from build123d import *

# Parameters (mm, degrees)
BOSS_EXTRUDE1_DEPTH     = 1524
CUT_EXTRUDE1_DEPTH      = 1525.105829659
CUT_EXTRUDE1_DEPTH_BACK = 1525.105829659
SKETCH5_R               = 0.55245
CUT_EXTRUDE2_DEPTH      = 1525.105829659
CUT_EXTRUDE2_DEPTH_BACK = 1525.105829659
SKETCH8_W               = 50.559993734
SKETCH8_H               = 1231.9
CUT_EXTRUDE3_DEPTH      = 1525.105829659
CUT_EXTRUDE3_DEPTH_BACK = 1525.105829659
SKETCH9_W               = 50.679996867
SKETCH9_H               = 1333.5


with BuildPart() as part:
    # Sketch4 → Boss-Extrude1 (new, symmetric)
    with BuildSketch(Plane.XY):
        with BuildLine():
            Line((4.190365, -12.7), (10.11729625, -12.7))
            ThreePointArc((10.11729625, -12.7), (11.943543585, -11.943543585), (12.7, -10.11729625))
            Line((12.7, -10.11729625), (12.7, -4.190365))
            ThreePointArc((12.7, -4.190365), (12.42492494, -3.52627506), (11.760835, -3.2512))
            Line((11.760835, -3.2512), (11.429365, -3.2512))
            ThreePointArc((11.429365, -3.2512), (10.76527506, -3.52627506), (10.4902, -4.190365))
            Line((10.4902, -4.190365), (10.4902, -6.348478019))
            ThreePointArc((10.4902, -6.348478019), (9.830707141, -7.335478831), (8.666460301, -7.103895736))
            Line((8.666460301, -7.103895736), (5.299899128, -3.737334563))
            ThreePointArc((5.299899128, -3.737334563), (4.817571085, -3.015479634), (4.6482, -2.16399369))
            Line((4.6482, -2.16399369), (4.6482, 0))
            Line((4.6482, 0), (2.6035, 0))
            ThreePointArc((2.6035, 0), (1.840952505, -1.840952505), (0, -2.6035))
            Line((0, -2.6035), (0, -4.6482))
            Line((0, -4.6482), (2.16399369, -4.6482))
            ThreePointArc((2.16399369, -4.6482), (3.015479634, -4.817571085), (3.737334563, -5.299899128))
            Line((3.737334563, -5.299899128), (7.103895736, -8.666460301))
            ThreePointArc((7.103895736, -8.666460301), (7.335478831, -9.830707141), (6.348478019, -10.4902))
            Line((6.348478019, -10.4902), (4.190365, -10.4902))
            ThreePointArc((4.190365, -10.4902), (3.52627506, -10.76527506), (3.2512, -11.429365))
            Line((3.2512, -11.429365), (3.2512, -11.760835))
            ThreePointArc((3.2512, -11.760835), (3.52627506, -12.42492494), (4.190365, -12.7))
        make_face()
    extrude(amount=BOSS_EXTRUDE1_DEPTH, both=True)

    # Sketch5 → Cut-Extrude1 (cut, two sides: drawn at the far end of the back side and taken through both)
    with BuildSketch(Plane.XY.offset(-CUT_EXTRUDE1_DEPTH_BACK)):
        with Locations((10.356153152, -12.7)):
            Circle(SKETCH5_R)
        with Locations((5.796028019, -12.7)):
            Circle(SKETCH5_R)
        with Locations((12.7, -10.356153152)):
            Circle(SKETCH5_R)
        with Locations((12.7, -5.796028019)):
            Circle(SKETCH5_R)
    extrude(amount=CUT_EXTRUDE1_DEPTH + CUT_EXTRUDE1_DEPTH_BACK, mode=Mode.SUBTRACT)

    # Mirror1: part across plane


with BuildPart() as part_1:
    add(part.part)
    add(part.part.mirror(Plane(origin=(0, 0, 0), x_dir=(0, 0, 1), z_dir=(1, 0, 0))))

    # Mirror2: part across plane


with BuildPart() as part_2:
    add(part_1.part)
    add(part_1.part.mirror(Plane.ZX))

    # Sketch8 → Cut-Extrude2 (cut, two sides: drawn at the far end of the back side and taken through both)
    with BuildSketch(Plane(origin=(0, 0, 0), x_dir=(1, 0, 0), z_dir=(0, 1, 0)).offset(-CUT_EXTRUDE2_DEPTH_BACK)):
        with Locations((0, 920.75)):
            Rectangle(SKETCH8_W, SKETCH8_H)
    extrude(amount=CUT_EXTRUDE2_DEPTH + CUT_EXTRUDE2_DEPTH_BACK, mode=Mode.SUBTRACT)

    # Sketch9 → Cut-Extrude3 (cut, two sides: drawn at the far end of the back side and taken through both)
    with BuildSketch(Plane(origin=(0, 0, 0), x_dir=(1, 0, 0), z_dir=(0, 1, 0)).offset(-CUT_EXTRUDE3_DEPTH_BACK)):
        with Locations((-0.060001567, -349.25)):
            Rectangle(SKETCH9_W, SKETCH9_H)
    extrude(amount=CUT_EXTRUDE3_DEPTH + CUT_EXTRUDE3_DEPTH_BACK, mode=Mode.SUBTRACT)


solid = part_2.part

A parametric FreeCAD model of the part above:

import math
import FreeCAD as App
import Part
import Sketcher
Q = App.Units.Quantity


def add_polygon(sketch, points):
    """Adds a closed chain of lines whose ends are joined by coincident constraints."""
    first, n = sketch.GeometryCount, len(points)
    for a, b in zip(points, points[1:] + points[:1]):
        sketch.addGeometry(Part.LineSegment(App.Vector(*a, 0), App.Vector(*b, 0)), False)
    for i in range(n):
        sketch.addConstraint(Sketcher.Constraint("Coincident", first + i, 2, first + (i + 1) % n, 1))

doc = App.newDocument("Part")
body = doc.addObject("PartDesign::Body", "Body")

# Sketch on XY plane
sketch1 = body.newObject("Sketcher::SketchObject", "Sketch")
sketch1.AttachmentSupport = (doc.getObject("XY_Plane"), [""])
sketch1.MapMode = "FlatFace"
sketch1.addGeometry([
    Part.LineSegment(App.Vector(4.19, -12.7, 0), App.Vector(10.12, -12.7, 0)),  # 0
    Part.ArcOfCircle(Part.Circle(App.Vector(10.12, -10.12, 0), App.Vector(0, 0, 1), 2.58), math.radians(-90), math.radians(0)),  # 1
    Part.LineSegment(App.Vector(12.7, -10.12, 0), App.Vector(12.7, -4.19, 0)),  # 2
    Part.ArcOfCircle(Part.Circle(App.Vector(11.76, -4.19, 0), App.Vector(0, 0, 1), 0.94), math.radians(0), math.radians(90)),  # 3
    Part.LineSegment(App.Vector(11.76, -3.25, 0), App.Vector(11.43, -3.25, 0)),  # 4
    Part.ArcOfCircle(Part.Circle(App.Vector(11.43, -4.19, 0), App.Vector(0, 0, 1), 0.94), math.radians(90), math.radians(180)),  # 5
    Part.LineSegment(App.Vector(10.49, -4.19, 0), App.Vector(10.49, -6.35, 0)),  # 6
    Part.ArcOfCircle(Part.Circle(App.Vector(9.42, -6.35, 0), App.Vector(0, 0, 1), 1.07), math.radians(-135), math.radians(0)),  # 7
    Part.LineSegment(App.Vector(8.67, -7.1, 0), App.Vector(5.3, -3.74, 0)),  # 8
    Part.ArcOfCircle(Part.Circle(App.Vector(6.87, -2.16, 0), App.Vector(0, 0, 1), 2.23), math.radians(-180), math.radians(-135)),  # 9
    Part.LineSegment(App.Vector(4.65, -2.16, 0), App.Vector(4.65, 0, 0)),  # 10
    Part.LineSegment(App.Vector(4.65, 0, 0), App.Vector(2.6, 0, 0)),  # 11
    Part.ArcOfCircle(Part.Circle(App.Vector(0, 0, 0), App.Vector(0, 0, 1), 2.6), math.radians(-90), math.radians(0)),  # 12
    Part.LineSegment(App.Vector(0, -2.6, 0), App.Vector(0, -4.65, 0)),  # 13
    Part.LineSegment(App.Vector(0, -4.65, 0), App.Vector(2.16, -4.65, 0)),  # 14
    Part.ArcOfCircle(Part.Circle(App.Vector(2.16, -6.87, 0), App.Vector(0, 0, 1), 2.23), math.radians(45), math.radians(90)),  # 15
    Part.LineSegment(App.Vector(3.74, -5.3, 0), App.Vector(7.1, -8.67, 0)),  # 16
    Part.ArcOfCircle(Part.Circle(App.Vector(6.35, -9.42, 0), App.Vector(0, 0, 1), 1.07), math.radians(-90), math.radians(45)),  # 17
    Part.LineSegment(App.Vector(6.35, -10.49, 0), App.Vector(4.19, -10.49, 0)),  # 18
    Part.ArcOfCircle(Part.Circle(App.Vector(4.19, -11.43, 0), App.Vector(0, 0, 1), 0.94), math.radians(90), math.radians(180)),  # 19
    Part.LineSegment(App.Vector(3.25, -11.43, 0), App.Vector(3.25, -11.76, 0)),  # 20
    Part.ArcOfCircle(Part.Circle(App.Vector(4.19, -11.76, 0), App.Vector(0, 0, 1), 0.94), math.radians(-180), math.radians(-90)),  # 21
], False)
sketch1.addConstraint([
    Sketcher.Constraint("Tangent", 0, 2, 1, 1),
    Sketcher.Constraint("Tangent", 1, 2, 2, 1),
    Sketcher.Constraint("Tangent", 2, 2, 3, 1),
    Sketcher.Constraint("Tangent", 3, 2, 4, 1),
    Sketcher.Constraint("Tangent", 4, 2, 5, 1),
    Sketcher.Constraint("Tangent", 5, 2, 6, 1),
    Sketcher.Constraint("Tangent", 6, 2, 7, 2),
    Sketcher.Constraint("Tangent", 7, 1, 8, 1),
    Sketcher.Constraint("Tangent", 8, 2, 9, 2),
    Sketcher.Constraint("Tangent", 9, 1, 10, 1),
    Sketcher.Constraint("Coincident", 10, 2, 11, 1),
    Sketcher.Constraint("Coincident", 11, 2, 12, 2),
    Sketcher.Constraint("Coincident", 12, 1, 13, 1),
    Sketcher.Constraint("Coincident", 13, 2, 14, 1),
    Sketcher.Constraint("Tangent", 14, 2, 15, 2),
    Sketcher.Constraint("Tangent", 15, 1, 16, 1),
    Sketcher.Constraint("Tangent", 16, 2, 17, 2),
    Sketcher.Constraint("Tangent", 17, 1, 18, 1),
    Sketcher.Constraint("Tangent", 18, 2, 19, 1),
    Sketcher.Constraint("Tangent", 19, 2, 20, 1),
    Sketcher.Constraint("Tangent", 20, 2, 21, 1),
    Sketcher.Constraint("Tangent", 21, 2, 0, 1),
    Sketcher.Constraint("Horizontal", 0),
    Sketcher.Constraint("Vertical", 2),
    Sketcher.Constraint("Horizontal", 4),
    Sketcher.Constraint("Vertical", 6),
    Sketcher.Constraint("Vertical", 10),
    Sketcher.Constraint("Horizontal", 11),
    Sketcher.Constraint("Vertical", 13),
    Sketcher.Constraint("Horizontal", 14),
    Sketcher.Constraint("Horizontal", 18),
    Sketcher.Constraint("Vertical", 20),
    Sketcher.Constraint("Coincident", 12, 3, -1, 1),
    Sketcher.Constraint("Equal", 3, 5),
    Sketcher.Constraint("Equal", 9, 15),
    Sketcher.Constraint("Equal", 7, 17),
    Sketcher.Constraint("Equal", 5, 19),
    Sketcher.Constraint("Equal", 19, 21),
    Sketcher.Constraint("PointOnObject", 10, 2, -1),
    Sketcher.Constraint("PointOnObject", 12, 1, -2),
    Sketcher.Constraint("Parallel", 8, 16),
    Sketcher.Constraint("Equal", 0, 2),
    Sketcher.Constraint("Equal", 18, 6),
    Sketcher.Constraint("Equal", 14, 10),
    Sketcher.Constraint("Equal", 11, 13),
    Sketcher.Constraint("Equal", 4, 20),
    Sketcher.Constraint("Equal", 8, 16),
    Sketcher.Constraint("DistanceY", 0, 2, -1, 1, Q("0.5 in")),
    Sketcher.Constraint("Radius", 9, Q("0.0876 in")),
    Sketcher.Constraint("Radius", 12, Q("0.1025 in")),
    Sketcher.Constraint("DistanceX", 9, 1, 5, 2, Q("0.23 in")),
    Sketcher.Constraint("DistanceX", 11, 2, 11, 1, Q("0.0805 in")),
    Sketcher.Constraint("DistanceY", 3, 2, -1, 1, Q("0.128 in")),
    Sketcher.Constraint("Radius", 7, Q("1.068322 mm")),
    Sketcher.Constraint("DistanceX", 17, 3, 7, 3, Q("0.121 in")),
    Sketcher.Constraint("Radius", 1, Q("2.582704 mm")),
    Sketcher.Constraint("Radius", 3, Q("0.939165 mm")),
])
pad1 = body.newObject("PartDesign::Pad", "Pad")
pad1.Profile = sketch1
pad1.Length = Q("120 in")
pad1.Midplane = True

# Sketch on XY plane
sketch2 = body.newObject("Sketcher::SketchObject", "Sketch001")
sketch2.AttachmentSupport = (doc.getObject("XY_Plane"), [""])
sketch2.MapMode = "FlatFace"
sketch2.addGeometry([
    Part.Circle(App.Vector(10.4, -12.7, 0), App.Vector(0, 0, 1), 0.6),
    Part.Circle(App.Vector(5.8, -12.7, 0), App.Vector(0, 0, 1), 0.6),
    Part.Circle(App.Vector(12.7, -10.4, 0), App.Vector(0, 0, 1), 0.6),
    Part.Circle(App.Vector(12.7, -5.8, 0), App.Vector(0, 0, 1), 0.6),
], False)
sketch2.addConstraint([
    Sketcher.Constraint("Equal", 0, 1),
    Sketcher.Constraint("Equal", 1, 2),
    Sketcher.Constraint("Equal", 2, 3),
    Sketcher.Constraint("Horizontal", 0, 3, 1, 3),
    Sketcher.Constraint("Vertical", 2, 3, 3, 3),
    Sketcher.Constraint("Diameter", 0, Q("0.0435 in")),
    Sketcher.Constraint("DistanceY", 0, 3, -1, 1, Q("0.5 in")),
    Sketcher.Constraint("DistanceX", -1, 1, 2, 3, Q("0.5 in")),
    Sketcher.Constraint("DistanceX", -1, 1, 1, 3, Q("5.796028 mm")),
    Sketcher.Constraint("DistanceY", 3, 3, -1, 1, Q("5.796028 mm")),
    Sketcher.Constraint("DistanceX", -1, 1, 0, 3, Q("10.356153 mm")),
    Sketcher.Constraint("DistanceY", 2, 3, -1, 1, Q("10.356153 mm")),
])
pocket1 = body.newObject("PartDesign::Pocket", "Pocket")
pocket1.Profile = sketch2
pocket1.Type = "ThroughAll"
pocket1.Midplane = True
body2 = doc.addObject("PartDesign::Body", "Body001")
doc.recompute()

body2.BaseFeature = body
doc.recompute()

mirroring = doc.addObject("Part::Mirroring", "Mirroring")
mirroring.Source = body
mirroring.Base = App.Vector(0, 0, 0)
mirroring.Normal = App.Vector(1, 0, 0)
body3 = doc.addObject("PartDesign::Body", "Body002")
body3.BaseFeature = mirroring
boolean = body2.newObject("PartDesign::Boolean", "Boolean")
boolean.Type = "Fuse"
boolean.addObjects([body3])
doc.recompute()
body4 = doc.addObject("PartDesign::Body", "Body003")
doc.recompute()

body4.BaseFeature = body2
doc.recompute()

mirroring2 = doc.addObject("Part::Mirroring", "Mirroring001")
mirroring2.Source = body2
mirroring2.Base = App.Vector(0, 0, 0)
mirroring2.Normal = App.Vector(0, 1, 0)
body5 = doc.addObject("PartDesign::Body", "Body004")
body5.BaseFeature = mirroring2
boolean2 = body4.newObject("PartDesign::Boolean", "Boolean001")
boolean2.Type = "Fuse"
boolean2.addObjects([body5])
doc.recompute()

# Sketch on XZ plane
sketch3 = body4.newObject("Sketcher::SketchObject", "Sketch002")
sketch3.AttachmentSupport = (doc.getObject("XZ_Plane003"), [""])
sketch3.MapMode = "FlatFace"
add_polygon(sketch3, [(-25, -1537), (-25, -305), (25, -305), (25, -1537)])  # lines 0-3
sketch3.addConstraint([
    Sketcher.Constraint("Vertical", 0),
    Sketcher.Constraint("Horizontal", 1),
    Sketcher.Constraint("Vertical", 2),
    Sketcher.Constraint("Horizontal", 3),
    Sketcher.Constraint("DistanceY", 0, 1, 0, 2, Q("48.5 in")),
    Sketcher.Constraint("DistanceY", 0, 2, -1, 1, Q("12 in")),
    Sketcher.Constraint("DistanceX", 1, 1, 1, 2, Q("50.559994 mm")),
    Sketcher.Constraint("DistanceX", 0, 2, -1, 1, Q("25.279997 mm")),
])
pocket2 = body4.newObject("PartDesign::Pocket", "Pocket001")
pocket2.Profile = sketch3
pocket2.Type = "ThroughAll"
pocket2.Midplane = True

# Sketch on XZ plane
sketch4 = body4.newObject("Sketcher::SketchObject", "Sketch003")
sketch4.AttachmentSupport = (doc.getObject("XZ_Plane003"), [""])
sketch4.MapMode = "FlatFace"
add_polygon(sketch4, [(-25, -318), (-25, 1016), (25, 1016), (25, -318)])  # lines 0-3
sketch4.addConstraint([
    Sketcher.Constraint("Vertical", 0),
    Sketcher.Constraint("Horizontal", 1),
    Sketcher.Constraint("Vertical", 2),
    Sketcher.Constraint("Horizontal", 3),
    Sketcher.Constraint("DistanceY", 0, 1, 0, 2, Q("52.5 in")),
    Sketcher.Constraint("DistanceX", 0, 2, -1, 1, Q("1 in")),
    Sketcher.Constraint("DistanceY", -1, 1, 0, 2, Q("40 in")),
    Sketcher.Constraint("DistanceX", 1, 1, 1, 2, Q("50.679997 mm")),
])
pocket3 = body4.newObject("PartDesign::Pocket", "Pocket002")
pocket3.Profile = sketch4
pocket3.Type = "ThroughAll"
pocket3.Midplane = True
mirroring.Visibility = False
mirroring2.Visibility = False

doc.recompute()
